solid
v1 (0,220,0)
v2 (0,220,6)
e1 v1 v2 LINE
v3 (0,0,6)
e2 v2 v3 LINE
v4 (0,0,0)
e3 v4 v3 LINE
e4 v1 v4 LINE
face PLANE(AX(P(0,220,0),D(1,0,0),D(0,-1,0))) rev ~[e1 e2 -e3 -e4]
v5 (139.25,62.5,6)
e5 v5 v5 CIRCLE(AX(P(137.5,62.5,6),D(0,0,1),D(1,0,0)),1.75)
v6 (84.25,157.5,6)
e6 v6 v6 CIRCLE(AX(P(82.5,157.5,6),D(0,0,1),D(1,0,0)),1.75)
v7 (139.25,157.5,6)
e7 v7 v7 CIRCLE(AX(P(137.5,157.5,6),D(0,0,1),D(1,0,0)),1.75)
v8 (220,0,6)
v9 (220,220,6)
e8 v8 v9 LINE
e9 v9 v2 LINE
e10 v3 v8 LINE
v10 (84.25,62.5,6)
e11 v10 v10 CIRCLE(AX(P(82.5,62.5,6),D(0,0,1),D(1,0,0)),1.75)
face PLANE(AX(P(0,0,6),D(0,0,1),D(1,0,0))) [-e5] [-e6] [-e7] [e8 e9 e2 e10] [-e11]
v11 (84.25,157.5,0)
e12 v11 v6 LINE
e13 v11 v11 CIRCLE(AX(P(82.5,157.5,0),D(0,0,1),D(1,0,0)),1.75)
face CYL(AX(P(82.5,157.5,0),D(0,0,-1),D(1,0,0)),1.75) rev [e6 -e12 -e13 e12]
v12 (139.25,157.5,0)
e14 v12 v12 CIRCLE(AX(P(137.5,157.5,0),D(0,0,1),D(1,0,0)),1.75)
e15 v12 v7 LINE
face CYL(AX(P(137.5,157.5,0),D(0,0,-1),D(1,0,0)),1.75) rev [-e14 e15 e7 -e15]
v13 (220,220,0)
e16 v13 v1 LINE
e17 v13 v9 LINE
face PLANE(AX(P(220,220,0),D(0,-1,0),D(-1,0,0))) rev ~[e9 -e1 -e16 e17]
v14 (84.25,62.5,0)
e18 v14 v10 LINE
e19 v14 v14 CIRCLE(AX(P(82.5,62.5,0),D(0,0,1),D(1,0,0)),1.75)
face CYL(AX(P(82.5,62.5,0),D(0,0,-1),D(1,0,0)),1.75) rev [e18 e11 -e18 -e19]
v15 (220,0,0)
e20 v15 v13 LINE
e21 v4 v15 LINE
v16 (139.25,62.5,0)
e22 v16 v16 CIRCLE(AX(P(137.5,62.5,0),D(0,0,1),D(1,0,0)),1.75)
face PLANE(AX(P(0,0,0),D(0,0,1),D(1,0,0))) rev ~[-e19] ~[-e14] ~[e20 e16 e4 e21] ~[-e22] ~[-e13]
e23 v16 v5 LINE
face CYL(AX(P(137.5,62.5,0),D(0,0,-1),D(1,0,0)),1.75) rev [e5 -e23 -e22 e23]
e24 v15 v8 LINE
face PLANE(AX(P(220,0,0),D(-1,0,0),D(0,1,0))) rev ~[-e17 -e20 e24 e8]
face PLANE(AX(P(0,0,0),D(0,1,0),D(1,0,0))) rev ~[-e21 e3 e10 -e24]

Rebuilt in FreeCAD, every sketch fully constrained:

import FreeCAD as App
import Part
import Sketcher

V = App.Vector
Q = App.Units.Quantity

doc = App.newDocument("Part")
params = doc.addObject("Spreadsheet::Sheet", "Params")
for row, (alias, value) in enumerate([
    ("sketch1_diameter", "3.5 mm"),
    ("sketch1_width", "220 mm"),
    ("pad1_length", "6 mm"),
], start=1):
    params.set(f"A{row}", alias)
    params.set(f"B{row}", "=" + value)
    params.setAlias(f"B{row}", alias)

body = doc.addObject("PartDesign::Body", "Body")

sketch1 = body.newObject("Sketcher::SketchObject", "Sketch")
sketch1.AttachmentSupport = (doc.getObject("XY_Plane"), [""])
sketch1.MapMode = "FlatFace"
sketch1.addGeometry([
    Part.LineSegment(V(0, 220, 0), V(0, 0, 0)),
    Part.LineSegment(V(0, 0, 0), V(220, 0, 0)),
    Part.LineSegment(V(220, 0, 0), V(220, 220, 0)),
    Part.LineSegment(V(220, 220, 0), V(0, 220, 0)),
    Part.Circle(V(82.5, 62.5, 0), V(0, 0, 1), 1.75),
    Part.Circle(V(137.5, 62.5, 0), V(0, 0, 1), 1.75),
    Part.Circle(V(82.5, 157.5, 0), V(0, 0, 1), 1.75),
    Part.Circle(V(137.5, 157.5, 0), V(0, 0, 1), 1.75),
], False)
sketch1.addConstraint([
    Sketcher.Constraint("Coincident", 0, 2, 1, 1),
    Sketcher.Constraint("Coincident", 1, 2, 2, 1),
    Sketcher.Constraint("Coincident", 2, 2, 3, 1),
    Sketcher.Constraint("Coincident", 3, 2, 0, 1),
    Sketcher.Constraint("Vertical", 0),
    Sketcher.Constraint("Horizontal", 1),
    Sketcher.Constraint("Vertical", 2),
    Sketcher.Constraint("Horizontal", 3),
    Sketcher.Constraint("Coincident", 0, 2, -1, 1),
    Sketcher.Constraint("Equal", 4, 5),
    Sketcher.Constraint("Equal", 5, 6),
    Sketcher.Constraint("Equal", 6, 7),
    Sketcher.Constraint("Horizontal", 4, 3, 5, 3),
    Sketcher.Constraint("Horizontal", 6, 3, 7, 3),
    Sketcher.Constraint("Vertical", 4, 3, 6, 3),
    Sketcher.Constraint("Vertical", 5, 3, 7, 3),
    Sketcher.Constraint("Equal", 3, 0),
    Sketcher.Constraint("Diameter", 4, Q("3.5 mm")),
    Sketcher.Constraint("DistanceX", 1, 1, 1, 2, Q("220 mm")),
    Sketcher.Constraint("DistanceX", 4, 3, 5, 3, Q("55 mm")),
    Sketcher.Constraint("DistanceY", 4, 3, 6, 3, Q("95 mm")),
    Sketcher.Constraint("DistanceX", -1, 1, 4, 3, Q("82.5 mm")),
    Sketcher.Constraint("DistanceY", -1, 1, 4, 3, Q("62.5 mm")),
])
sketch1.setExpression("Constraints[17]", "Params.sketch1_diameter")
sketch1.setExpression("Constraints[18]", "Params.sketch1_width")
pad1 = body.newObject("PartDesign::Pad", "Pad")
pad1.Profile = sketch1
pad1.setExpression("Length", "Params.pad1_length")

doc.recompute()
